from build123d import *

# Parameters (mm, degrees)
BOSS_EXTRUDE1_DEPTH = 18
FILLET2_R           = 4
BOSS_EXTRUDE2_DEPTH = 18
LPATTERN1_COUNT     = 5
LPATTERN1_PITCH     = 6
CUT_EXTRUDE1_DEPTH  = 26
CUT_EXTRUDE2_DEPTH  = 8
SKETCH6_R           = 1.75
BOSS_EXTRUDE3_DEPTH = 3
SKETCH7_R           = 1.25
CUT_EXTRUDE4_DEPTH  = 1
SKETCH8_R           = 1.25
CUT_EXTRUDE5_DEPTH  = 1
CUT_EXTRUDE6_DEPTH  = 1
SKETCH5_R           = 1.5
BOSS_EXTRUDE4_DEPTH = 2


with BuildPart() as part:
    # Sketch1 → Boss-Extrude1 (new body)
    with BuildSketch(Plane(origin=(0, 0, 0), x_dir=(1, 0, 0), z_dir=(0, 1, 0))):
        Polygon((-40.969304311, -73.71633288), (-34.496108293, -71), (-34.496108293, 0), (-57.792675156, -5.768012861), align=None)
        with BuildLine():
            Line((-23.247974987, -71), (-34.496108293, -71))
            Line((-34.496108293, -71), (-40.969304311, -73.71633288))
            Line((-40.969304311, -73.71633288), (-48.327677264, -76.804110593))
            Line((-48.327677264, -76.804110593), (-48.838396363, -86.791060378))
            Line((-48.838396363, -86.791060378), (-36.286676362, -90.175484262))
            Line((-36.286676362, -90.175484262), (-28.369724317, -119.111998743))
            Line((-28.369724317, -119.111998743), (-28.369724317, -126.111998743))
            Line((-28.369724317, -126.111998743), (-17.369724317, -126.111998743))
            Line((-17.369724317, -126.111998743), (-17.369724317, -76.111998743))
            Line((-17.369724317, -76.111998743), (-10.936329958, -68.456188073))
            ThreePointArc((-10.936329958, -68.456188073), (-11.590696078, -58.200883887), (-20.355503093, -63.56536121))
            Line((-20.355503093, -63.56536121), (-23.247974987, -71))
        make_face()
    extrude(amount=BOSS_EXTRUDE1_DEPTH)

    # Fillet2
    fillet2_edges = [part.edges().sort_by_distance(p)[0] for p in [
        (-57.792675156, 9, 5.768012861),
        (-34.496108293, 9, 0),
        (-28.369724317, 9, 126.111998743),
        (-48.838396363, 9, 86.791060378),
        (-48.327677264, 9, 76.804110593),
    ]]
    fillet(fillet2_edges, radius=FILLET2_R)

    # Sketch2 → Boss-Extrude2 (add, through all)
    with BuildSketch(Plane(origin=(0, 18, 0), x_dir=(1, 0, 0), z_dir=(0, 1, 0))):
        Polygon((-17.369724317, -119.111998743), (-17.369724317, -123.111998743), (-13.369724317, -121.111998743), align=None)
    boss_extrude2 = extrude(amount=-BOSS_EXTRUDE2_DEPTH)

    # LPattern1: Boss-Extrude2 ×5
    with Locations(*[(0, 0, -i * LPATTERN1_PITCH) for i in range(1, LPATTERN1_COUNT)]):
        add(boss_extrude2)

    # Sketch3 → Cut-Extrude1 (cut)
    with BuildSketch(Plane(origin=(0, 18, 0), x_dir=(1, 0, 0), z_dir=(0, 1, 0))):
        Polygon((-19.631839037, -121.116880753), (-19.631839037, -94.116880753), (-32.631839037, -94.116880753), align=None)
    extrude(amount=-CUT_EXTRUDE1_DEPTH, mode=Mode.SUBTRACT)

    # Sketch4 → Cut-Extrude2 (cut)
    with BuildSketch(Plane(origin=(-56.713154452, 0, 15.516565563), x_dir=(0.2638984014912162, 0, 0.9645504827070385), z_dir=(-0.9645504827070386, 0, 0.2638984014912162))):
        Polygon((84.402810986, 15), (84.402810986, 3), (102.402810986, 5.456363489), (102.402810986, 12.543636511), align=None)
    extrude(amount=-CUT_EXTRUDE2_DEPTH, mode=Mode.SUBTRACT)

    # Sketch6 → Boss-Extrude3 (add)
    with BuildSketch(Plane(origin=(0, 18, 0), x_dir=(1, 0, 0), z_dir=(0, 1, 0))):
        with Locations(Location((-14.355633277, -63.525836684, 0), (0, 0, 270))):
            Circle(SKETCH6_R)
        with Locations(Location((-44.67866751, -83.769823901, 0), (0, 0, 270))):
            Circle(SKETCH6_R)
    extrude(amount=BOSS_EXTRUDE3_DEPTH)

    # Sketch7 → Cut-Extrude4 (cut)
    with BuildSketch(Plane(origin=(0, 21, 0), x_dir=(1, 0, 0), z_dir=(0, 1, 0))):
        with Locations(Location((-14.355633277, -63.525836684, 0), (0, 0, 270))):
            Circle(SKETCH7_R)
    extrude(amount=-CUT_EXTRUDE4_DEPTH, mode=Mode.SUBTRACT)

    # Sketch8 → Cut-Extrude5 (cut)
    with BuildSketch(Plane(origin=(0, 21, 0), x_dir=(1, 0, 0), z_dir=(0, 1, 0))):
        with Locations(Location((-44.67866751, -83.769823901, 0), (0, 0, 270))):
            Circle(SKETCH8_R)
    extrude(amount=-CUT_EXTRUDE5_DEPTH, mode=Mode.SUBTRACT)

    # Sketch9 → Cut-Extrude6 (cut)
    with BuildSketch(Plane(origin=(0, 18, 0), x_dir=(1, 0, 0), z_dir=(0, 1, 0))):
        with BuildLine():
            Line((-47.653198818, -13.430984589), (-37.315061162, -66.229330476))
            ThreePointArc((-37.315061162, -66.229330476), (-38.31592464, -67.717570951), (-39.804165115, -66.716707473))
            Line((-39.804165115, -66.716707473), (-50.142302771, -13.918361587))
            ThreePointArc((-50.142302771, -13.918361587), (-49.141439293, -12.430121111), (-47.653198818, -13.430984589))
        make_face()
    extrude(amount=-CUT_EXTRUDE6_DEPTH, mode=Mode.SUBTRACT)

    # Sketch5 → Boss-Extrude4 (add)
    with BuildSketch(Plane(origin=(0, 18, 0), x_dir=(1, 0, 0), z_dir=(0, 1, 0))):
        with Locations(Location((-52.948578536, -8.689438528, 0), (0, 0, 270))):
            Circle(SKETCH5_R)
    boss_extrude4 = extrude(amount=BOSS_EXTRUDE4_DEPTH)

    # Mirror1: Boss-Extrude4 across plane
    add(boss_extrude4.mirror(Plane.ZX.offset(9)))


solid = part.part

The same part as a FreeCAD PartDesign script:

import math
import FreeCAD as App
import Part
import Sketcher

V = App.Vector


def edges_at(feature, points):
    """Names of the edges that pass closest to the given points."""
    edges = feature.Shape.Edges
    near = lambda p: min(range(len(edges)), key=lambda i: edges[i].distToShape(Part.Vertex(*p))[0])
    return sorted({f"Edge{near(p) + 1}" for p in points})


def add_polygon(sketch, points):
    """Adds a closed chain of lines whose ends are joined by coincident constraints."""
    first, n = sketch.GeometryCount, len(points)
    for a, b in zip(points, points[1:] + points[:1]):
        sketch.addGeometry(Part.LineSegment(App.Vector(*a, 0), App.Vector(*b, 0)), False)
    for i in range(n):
        sketch.addConstraint(Sketcher.Constraint("Coincident", first + i, 2, first + (i + 1) % n, 1))

doc = App.newDocument("Part")
body = doc.addObject("PartDesign::Body", "Body")

sketch1 = body.newObject("Sketcher::SketchObject", "Sketch")
sketch1.AttachmentSupport = (doc.getObject("XZ_Plane"), [""])
sketch1.MapMode = "FlatFace"
sketch1.addGeometry(Part.LineSegment(V(-34, 71, 0), V(-34, 0, 0)), False)
sketch1.addGeometry(Part.LineSegment(V(-34, 0, 0), V(-58, 6, 0)), False)
sketch1.addGeometry(Part.LineSegment(V(-58, 6, 0), V(-41, 74, 0)), False)
sketch1.addGeometry(Part.LineSegment(V(-41, 74, 0), V(-48, 77, 0)), False)
sketch1.addGeometry(Part.LineSegment(V(-48, 77, 0), V(-49, 87, 0)), False)
sketch1.addGeometry(Part.LineSegment(V(-49, 87, 0), V(-36, 90, 0)), False)
sketch1.addGeometry(Part.LineSegment(V(-36, 90, 0), V(-28, 119, 0)), False)
sketch1.addGeometry(Part.LineSegment(V(-28, 119, 0), V(-28, 126, 0)), False)
sketch1.addGeometry(Part.LineSegment(V(-28, 126, 0), V(-17, 126, 0)), False)
sketch1.addGeometry(Part.LineSegment(V(-17, 126, 0), V(-17, 76, 0)), False)
sketch1.addGeometry(Part.LineSegment(V(-17, 76, 0), V(-11, 68, 0)), False)
sketch1.addGeometry(Part.ArcOfCircle(Part.Circle(V(-14, 64, 0), V(0, 0, 1), 6), math.radians(180), math.radians(415)), False)
sketch1.addGeometry(Part.LineSegment(V(-20, 64, 0), V(-23, 71, 0)), False)
sketch1.addGeometry(Part.LineSegment(V(-23, 71, 0), V(-34, 71, 0)), False)
sketch1.addConstraint(Sketcher.Constraint("Coincident", 0, 2, 1, 1))
sketch1.addConstraint(Sketcher.Constraint("Coincident", 1, 2, 2, 1))
sketch1.addConstraint(Sketcher.Constraint("Coincident", 2, 2, 3, 1))
sketch1.addConstraint(Sketcher.Constraint("Coincident", 3, 2, 4, 1))
sketch1.addConstraint(Sketcher.Constraint("Coincident", 4, 2, 5, 1))
sketch1.addConstraint(Sketcher.Constraint("Coincident", 5, 2, 6, 1))
sketch1.addConstraint(Sketcher.Constraint("Coincident", 6, 2, 7, 1))
sketch1.addConstraint(Sketcher.Constraint("Coincident", 7, 2, 8, 1))
sketch1.addConstraint(Sketcher.Constraint("Coincident", 8, 2, 9, 1))
sketch1.addConstraint(Sketcher.Constraint("Coincident", 9, 2, 10, 1))
sketch1.addConstraint(Sketcher.Constraint("Coincident", 10, 2, 11, 2))
sketch1.addConstraint(Sketcher.Constraint("Coincident", 11, 1, 12, 1))
sketch1.addConstraint(Sketcher.Constraint("Coincident", 12, 2, 13, 1))
sketch1.addConstraint(Sketcher.Constraint("Coincident", 13, 2, 0, 1))
sketch1.addConstraint(Sketcher.Constraint("Vertical", 0))
sketch1.addConstraint(Sketcher.Constraint("Vertical", 7))
sketch1.addConstraint(Sketcher.Constraint("Horizontal", 8))
sketch1.addConstraint(Sketcher.Constraint("Vertical", 9))
sketch1.addConstraint(Sketcher.Constraint("Horizontal", 13))
sketch1.addConstraint(Sketcher.Constraint("PointOnObject", 0, 2, -1))
sketch1.addConstraint(Sketcher.Constraint("Perpendicular", 1, 2))
sketch1.addConstraint(Sketcher.Constraint("Equal", 4, 10))
sketch1.addConstraint(Sketcher.Constraint("Radius", 11, 6.0))
sketch1.addConstraint(Sketcher.Constraint("DistanceX", 8, 1, 8, 2, 11.0))
sketch1.addConstraint(Sketcher.Constraint("DistanceY", 0, 2, 0, 1, 71.0))
sketch1.addConstraint(Sketcher.Constraint("DistanceY", 7, 1, 7, 2, 7.0))
sketch1.addConstraint(Sketcher.Constraint("DistanceY", 9, 2, 9, 1, 50.0))
sketch1.addConstraint(Sketcher.Constraint("Distance", 1, 24.0))
sketch1.addConstraint(Sketcher.Constraint("Distance", 2, 70.0))
sketch1.addConstraint(Sketcher.Constraint("Distance", 4, 10.0))
sketch1.addConstraint(Sketcher.Constraint("Distance", 5, 13.0))
sketch1.addConstraint(Sketcher.Constraint("Distance", 6, 30.0))
sketch1.addConstraint(Sketcher.Constraint("DistanceY", -1, 1, 6, 2, 119.111999))
sketch1.addConstraint(Sketcher.Constraint("DistanceX", 3, 2, 5, 2, 12.041001))
sketch1.addConstraint(Sketcher.Constraint("DistanceX", 1, 2, 5, 2, 21.505999))
sketch1.addConstraint(Sketcher.Constraint("DistanceX", 2, 2, 11, 1, 20.613801))
sketch1.addConstraint(Sketcher.Constraint("DistanceX", 13, 2, 13, 1, 11.248133))
sketch1.addConstraint(Sketcher.Constraint("DistanceX", 0, 2, -1, 1, 34.496108))
sketch1.addConstraint(Sketcher.Constraint("DistanceY", -1, 1, 3, 2, 76.804111))
sketch1.addConstraint(Sketcher.Constraint("DistanceX", 10, 2, -1, 1, 10.93633))
sketch1.addConstraint(Sketcher.Constraint("DistanceY", -1, 1, 10, 2, 68.456188))
sketch1.addConstraint(Sketcher.Constraint("DistanceY", -1, 1, 11, 1, 63.565361))
sketch1.addConstraint(Sketcher.Constraint("DistanceX", 1, 2, 11, 3, 43.437042))
pad1 = body.newObject("PartDesign::Pad", "Pad")
pad1.Profile = sketch1
pad1.Length = 18
pad1.Reversed = True
doc.recompute()

fillet = body.newObject("PartDesign::Fillet", "Fillet")
fillet.Base = (pad1, edges_at(pad1, [
    (-57.793, 9, 5.768),
    (-34.496, 9, 0),
    (-28.37, 9, 126.112),
    (-48.838, 9, 86.791),
    (-48.328, 9, 76.804),
]))
fillet.Radius = 4

sketch2 = body.newObject("Sketcher::SketchObject", "Sketch001")
sketch2.AttachmentSupport = (doc.getObject("XZ_Plane"), [""])
sketch2.MapMode = "FlatFace"
sketch2.AttachmentOffset = App.Placement(V(0, 0, -18), App.Rotation())
add_polygon(sketch2, [(-17.4, 119.1), (-17.4, 123.1), (-13.4, 121.1)])
sketch2.addConstraint(Sketcher.Constraint("Vertical", 0))
sketch2.addConstraint(Sketcher.Constraint("Equal", 1, 2))
sketch2.addConstraint(Sketcher.Constraint("DistanceY", 0, 1, 0, 2, 4.0))
sketch2.addConstraint(Sketcher.Constraint("DistanceX", 0, 2, 1, 2, 4.0))
sketch2.addConstraint(Sketcher.Constraint("DistanceY", -1, 1, 0, 2, 123.111999))
sketch2.addConstraint(Sketcher.Constraint("DistanceX", 0, 2, -1, 1, 17.369724))
pad2 = body.newObject("PartDesign::Pad", "Pad001")
pad2.Profile = sketch2
pad2.Length = 18
doc.recompute()

linearpattern = body.newObject("PartDesign::LinearPattern", "LinearPattern")
linearpattern.Originals = [pad2]
linearpattern.Direction = (doc.getObject("Z_Axis"), [""])
linearpattern.Mode = "offset"
linearpattern.Offset = 6
linearpattern.Occurrences = 5
linearpattern.Reversed = True
body.Tip = linearpattern

sketch3 = body.newObject("Sketcher::SketchObject", "Sketch002")
sketch3.AttachmentSupport = (doc.getObject("XZ_Plane"), [""])
sketch3.MapMode = "FlatFace"
sketch3.AttachmentOffset = App.Placement(V(0, 0, -18), App.Rotation())
add_polygon(sketch3, [(-20, 121), (-20, 94), (-33, 94)])
sketch3.addConstraint(Sketcher.Constraint("Vertical", 0))
sketch3.addConstraint(Sketcher.Constraint("Horizontal", 1))
sketch3.addConstraint(Sketcher.Constraint("DistanceX", 1, 2, 1, 1, 13.0))
sketch3.addConstraint(Sketcher.Constraint("DistanceY", 0, 2, 0, 1, 27.0))
sketch3.addConstraint(Sketcher.Constraint("DistanceX", 0, 2, -1, 1, 19.631839))
sketch3.addConstraint(Sketcher.Constraint("DistanceY", -1, 1, 0, 2, 94.116881))
pocket1 = body.newObject("PartDesign::Pocket", "Pocket")
pocket1.Profile = sketch3
pocket1.Length = 26
pocket1.Reversed = True

sketch4 = body.newObject("Sketcher::SketchObject", "Sketch003")
sketch4.Placement = App.Placement(V(-56.713154, 0, 15.516566), App.Rotation(V(0.263898401, 0, 0.964550483), V(0, 1, 0), V(-0.964550483, 0, 0.263898401), "ZXY"))
add_polygon(sketch4, [(84, 15), (84, 3), (102, 5), (102, 13)])
sketch4.addConstraint(Sketcher.Constraint("Vertical", 0))
sketch4.addConstraint(Sketcher.Constraint("Vertical", 2))
sketch4.addConstraint(Sketcher.Constraint("Equal", 1, 3))
sketch4.addConstraint(Sketcher.Constraint("DistanceY", 0, 2, 0, 1, 12.0))
sketch4.addConstraint(Sketcher.Constraint("DistanceY", -1, 1, 0, 2, 3.0))
sketch4.addConstraint(Sketcher.Constraint("DistanceX", 0, 2, 1, 2, 18.0))
sketch4.addConstraint(Sketcher.Constraint("Distance", 1, 18.16683))
sketch4.addConstraint(Sketcher.Constraint("DistanceX", -1, 1, 0, 2, 84.402811))
pocket2 = body.newObject("PartDesign::Pocket", "Pocket001")
pocket2.Profile = sketch4
pocket2.Length = 8

sketch5 = body.newObject("Sketcher::SketchObject", "Sketch004")
sketch5.AttachmentSupport = (doc.getObject("XZ_Plane"), [""])
sketch5.MapMode = "FlatFace"
sketch5.AttachmentOffset = App.Placement(V(0, 0, -18), App.Rotation())
sketch5.addGeometry(Part.Circle(V(-14.4, 63.5, 0), V(0, 0, 1), 1.8), False)
sketch5.addGeometry(Part.Circle(V(-44.7, 83.8, 0), V(0, 0, 1), 1.8), False)
sketch5.addConstraint(Sketcher.Constraint("Equal", 0, 1))
sketch5.addConstraint(Sketcher.Constraint("Diameter", 0, 3.5))
sketch5.addConstraint(Sketcher.Constraint("DistanceX", 0, 3, -1, 1, 14.355633))
sketch5.addConstraint(Sketcher.Constraint("DistanceY", -1, 1, 0, 3, 63.525837))
sketch5.addConstraint(Sketcher.Constraint("DistanceX", 1, 3, -1, 1, 44.678668))
sketch5.addConstraint(Sketcher.Constraint("DistanceY", -1, 1, 1, 3, 83.769824))
pad3 = body.newObject("PartDesign::Pad", "Pad002")
pad3.Profile = sketch5
pad3.Length = 3
pad3.Reversed = True

sketch6 = body.newObject("Sketcher::SketchObject", "Sketch005")
sketch6.AttachmentSupport = (doc.getObject("XZ_Plane"), [""])
sketch6.MapMode = "FlatFace"
sketch6.AttachmentOffset = App.Placement(V(0, 0, -21), App.Rotation())
sketch6.addGeometry(Part.Circle(V(-14.4, 63.5, 0), V(0, 0, 1), 1.2), False)
sketch6.addConstraint(Sketcher.Constraint("Diameter", 0, 2.5))
sketch6.addConstraint(Sketcher.Constraint("DistanceX", 0, 3, -1, 1, 14.355633))
sketch6.addConstraint(Sketcher.Constraint("DistanceY", -1, 1, 0, 3, 63.525837))
pocket3 = body.newObject("PartDesign::Pocket", "Pocket002")
pocket3.Profile = sketch6
pocket3.Length = 1
pocket3.Reversed = True

sketch7 = body.newObject("Sketcher::SketchObject", "Sketch006")
sketch7.AttachmentSupport = (doc.getObject("XZ_Plane"), [""])
sketch7.MapMode = "FlatFace"
sketch7.AttachmentOffset = App.Placement(V(0, 0, -21), App.Rotation())
sketch7.addGeometry(Part.Circle(V(-44.7, 83.8, 0), V(0, 0, 1), 1.2), False)
sketch7.addConstraint(Sketcher.Constraint("Diameter", 0, 2.5))
sketch7.addConstraint(Sketcher.Constraint("DistanceX", 0, 3, -1, 1, 44.678668))
sketch7.addConstraint(Sketcher.Constraint("DistanceY", -1, 1, 0, 3, 83.769824))
pocket4 = body.newObject("PartDesign::Pocket", "Pocket003")
pocket4.Profile = sketch7
pocket4.Length = 1
pocket4.Reversed = True

sketch8 = body.newObject("Sketcher::SketchObject", "Sketch007")
sketch8.AttachmentSupport = (doc.getObject("XZ_Plane"), [""])
sketch8.MapMode = "FlatFace"
sketch8.AttachmentOffset = App.Placement(V(0, 0, -18), App.Rotation())
sketch8.addGeometry(Part.LineSegment(V(-37.315061, 66.22933, 0), V(-47.653199, 13.430985, 0)), False)
sketch8.addGeometry(Part.ArcOfCircle(Part.Circle(V(-48.897751, 13.674673, 0), V(0, 0, 1), 1.268185), math.radians(168.921409), math.radians(348.921409)), False)
sketch8.addGeometry(Part.LineSegment(V(-50.142303, 13.918362, 0), V(-39.804165, 66.716707, 0)), False)
sketch8.addGeometry(Part.ArcOfCircle(Part.Circle(V(-38.559613, 66.473019, 0), V(0, 0, 1), 1.268185), math.radians(-11.078591), math.radians(168.921409)), False)
sketch8.addConstraint(Sketcher.Constraint("Coincident", 0, 2, 1, 2))
sketch8.addConstraint(Sketcher.Constraint("Coincident", 1, 1, 2, 1))
sketch8.addConstraint(Sketcher.Constraint("Coincident", 2, 2, 3, 2))
sketch8.addConstraint(Sketcher.Constraint("Coincident", 3, 1, 0, 1))
sketch8.addConstraint(Sketcher.Constraint("Radius", 1, 1.268185))
sketch8.addConstraint(Sketcher.Constraint("Radius", 3, 1.268185))
sketch8.addConstraint(Sketcher.Constraint("DistanceX", 0, 2, -1, 1, 47.653199))
sketch8.addConstraint(Sketcher.Constraint("Distance", 0, 53.800952))
sketch8.addConstraint(Sketcher.Constraint("Distance", 2, 53.800952))
sketch8.addConstraint(Sketcher.Constraint("DistanceX", 1, 3, -1, 1, 48.897751))
sketch8.addConstraint(Sketcher.Constraint("DistanceY", -1, 1, 3, 3, 66.473019))
sketch8.addConstraint(Sketcher.Constraint("DistanceY", -1, 1, 1, 1, 13.918362))
sketch8.addConstraint(Sketcher.Constraint("DistanceX", 3, 1, -1, 1, 37.315061))
sketch8.addConstraint(Sketcher.Constraint("DistanceY", -1, 1, 3, 1, 66.22933))
pocket5 = body.newObject("PartDesign::Pocket", "Pocket004")
pocket5.Profile = sketch8
pocket5.Length = 1
pocket5.Reversed = True

sketch9 = body.newObject("Sketcher::SketchObject", "Sketch008")
sketch9.AttachmentSupport = (doc.getObject("XZ_Plane"), [""])
sketch9.MapMode = "FlatFace"
sketch9.AttachmentOffset = App.Placement(V(0, 0, -18), App.Rotation())
sketch9.addGeometry(Part.Circle(V(-52.9, 8.7, 0), V(0, 0, 1), 1.5), False)
sketch9.addConstraint(Sketcher.Constraint("Diameter", 0, 3.0))
sketch9.addConstraint(Sketcher.Constraint("DistanceX", 0, 3, -1, 1, 52.948579))
sketch9.addConstraint(Sketcher.Constraint("DistanceY", -1, 1, 0, 3, 8.689439))
pad4 = body.newObject("PartDesign::Pad", "Pad003")
pad4.Profile = sketch9
pad4.Length = 2
pad4.Reversed = True
doc.recompute()

datumplane = body.newObject("PartDesign::Plane", "DatumPlane")
datumplane.AttachmentSupport = (doc.getObject("XZ_Plane"), [""])
datumplane.MapMode = "FlatFace"
datumplane.AttachmentOffset = App.Placement(V(0, 0, -9), App.Rotation())
mirrored = body.newObject("PartDesign::Mirrored", "Mirrored")
mirrored.Originals = [pad4]
mirrored.MirrorPlane = (datumplane, [""])
body.Tip = mirrored

doc.recompute()
